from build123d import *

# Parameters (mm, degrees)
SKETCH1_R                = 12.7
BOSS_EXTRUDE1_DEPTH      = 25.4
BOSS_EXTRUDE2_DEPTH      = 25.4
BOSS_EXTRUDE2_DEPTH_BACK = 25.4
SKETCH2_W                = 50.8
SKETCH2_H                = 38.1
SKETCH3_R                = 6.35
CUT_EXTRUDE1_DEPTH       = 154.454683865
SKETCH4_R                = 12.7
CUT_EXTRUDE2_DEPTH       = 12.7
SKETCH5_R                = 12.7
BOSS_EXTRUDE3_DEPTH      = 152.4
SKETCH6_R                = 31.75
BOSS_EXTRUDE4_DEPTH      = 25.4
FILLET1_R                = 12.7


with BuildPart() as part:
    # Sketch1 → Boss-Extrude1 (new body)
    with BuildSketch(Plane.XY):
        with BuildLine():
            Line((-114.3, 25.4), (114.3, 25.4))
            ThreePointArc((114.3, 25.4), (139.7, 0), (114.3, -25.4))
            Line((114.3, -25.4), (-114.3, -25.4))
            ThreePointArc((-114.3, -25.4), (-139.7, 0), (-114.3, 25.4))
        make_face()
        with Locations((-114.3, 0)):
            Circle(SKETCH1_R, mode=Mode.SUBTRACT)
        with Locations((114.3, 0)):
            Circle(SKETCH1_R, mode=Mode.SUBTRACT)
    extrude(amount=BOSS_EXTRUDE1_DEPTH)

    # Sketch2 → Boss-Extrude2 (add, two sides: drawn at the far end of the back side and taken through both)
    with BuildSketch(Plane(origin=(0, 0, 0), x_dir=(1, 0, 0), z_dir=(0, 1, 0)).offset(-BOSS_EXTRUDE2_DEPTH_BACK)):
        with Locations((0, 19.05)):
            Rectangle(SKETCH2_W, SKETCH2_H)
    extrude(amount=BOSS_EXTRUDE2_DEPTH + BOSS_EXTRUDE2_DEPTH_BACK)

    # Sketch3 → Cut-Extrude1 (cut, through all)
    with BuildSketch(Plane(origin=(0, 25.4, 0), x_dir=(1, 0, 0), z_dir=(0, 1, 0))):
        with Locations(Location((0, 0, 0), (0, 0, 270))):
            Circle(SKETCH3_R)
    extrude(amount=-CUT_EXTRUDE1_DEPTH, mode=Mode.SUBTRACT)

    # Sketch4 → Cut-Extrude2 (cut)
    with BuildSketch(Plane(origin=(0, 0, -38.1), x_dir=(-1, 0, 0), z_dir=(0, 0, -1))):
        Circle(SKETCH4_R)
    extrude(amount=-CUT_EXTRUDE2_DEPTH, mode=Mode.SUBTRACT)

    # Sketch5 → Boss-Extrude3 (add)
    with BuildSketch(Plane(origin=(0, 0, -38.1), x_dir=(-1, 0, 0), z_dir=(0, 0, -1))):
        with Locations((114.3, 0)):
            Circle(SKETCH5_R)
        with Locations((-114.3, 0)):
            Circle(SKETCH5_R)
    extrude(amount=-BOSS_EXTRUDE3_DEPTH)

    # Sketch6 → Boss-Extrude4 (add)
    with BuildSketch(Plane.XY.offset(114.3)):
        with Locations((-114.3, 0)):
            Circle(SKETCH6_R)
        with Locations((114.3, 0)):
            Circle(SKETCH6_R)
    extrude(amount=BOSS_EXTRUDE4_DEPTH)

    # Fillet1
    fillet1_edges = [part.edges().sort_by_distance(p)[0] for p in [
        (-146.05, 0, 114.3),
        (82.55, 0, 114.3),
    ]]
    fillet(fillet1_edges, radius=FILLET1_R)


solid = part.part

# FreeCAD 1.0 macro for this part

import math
import FreeCAD as App
import Part
import Sketcher
Q = App.Units.Quantity


def edges_at(feature, points):
    """Names of the edges that pass closest to the given points."""
    edges = feature.Shape.Edges
    near = lambda p: min(range(len(edges)), key=lambda i: edges[i].distToShape(Part.Vertex(*p))[0])
    return sorted({f"Edge{near(p) + 1}" for p in points})

doc = App.newDocument("Part")
body = doc.addObject("PartDesign::Body", "Body")

# Sketch on XY plane
sketch1 = body.newObject("Sketcher::SketchObject", "Sketch")
sketch1.AttachmentSupport = (doc.getObject("XY_Plane"), [""])
sketch1.MapMode = "FlatFace"
sketch1.addGeometry([
    Part.LineSegment(App.Vector(114, 25, 0), App.Vector(-114, 25, 0)),  # 0
    Part.ArcOfCircle(Part.Circle(App.Vector(-114, 0, 0), App.Vector(0, 0, 1), 25), math.radians(90), math.radians(270)),  # 1
    Part.LineSegment(App.Vector(-114, -25, 0), App.Vector(114, -25, 0)),  # 2
    Part.ArcOfCircle(Part.Circle(App.Vector(114, 0, 0), App.Vector(0, 0, 1), 25), math.radians(-90), math.radians(90)),  # 3
    Part.Circle(App.Vector(114, 0, 0), App.Vector(0, 0, 1), 13),  # 4
    Part.Circle(App.Vector(-114, 0, 0), App.Vector(0, 0, 1), 13),  # 5
], False)
sketch1.addConstraint([
    Sketcher.Constraint("Tangent", 0, 2, 1, 1),
    Sketcher.Constraint("Tangent", 1, 2, 2, 1),
    Sketcher.Constraint("Tangent", 2, 2, 3, 1),
    Sketcher.Constraint("Tangent", 3, 2, 0, 1),
    Sketcher.Constraint("Horizontal", 0),
    Sketcher.Constraint("Horizontal", 2),
    Sketcher.Constraint("Coincident", 4, 3, 3, 3),
    Sketcher.Constraint("Coincident", 5, 3, 1, 3),
    Sketcher.Constraint("Equal", 4, 5),
    Sketcher.Constraint("Symmetric", 1, 3, 3, 3, -1, 1),
    Sketcher.Constraint("Diameter", 4, Q("1 in")),
    Sketcher.Constraint("Radius", 1, Q("1 in")),
    Sketcher.Constraint("DistanceX", 0, 2, 0, 1, Q("9 in")),
])
pad1 = body.newObject("PartDesign::Pad", "Pad")
pad1.Profile = sketch1
pad1.Length = Q("1 in")

# Sketch on XZ plane
sketch2 = body.newObject("Sketcher::SketchObject", "Sketch001")
sketch2.AttachmentSupport = (doc.getObject("XZ_Plane"), [""])
sketch2.MapMode = "FlatFace"
sketch2.addGeometry([
    Part.LineSegment(App.Vector(-25, -38, 0), App.Vector(-25, 0, 0)),
    Part.LineSegment(App.Vector(-25, 0, 0), App.Vector(25, 0, 0)),
    Part.LineSegment(App.Vector(25, 0, 0), App.Vector(25, -38, 0)),
    Part.LineSegment(App.Vector(25, -38, 0), App.Vector(-25, -38, 0)),
], False)
sketch2.addConstraint([
    Sketcher.Constraint("Coincident", 0, 2, 1, 1),
    Sketcher.Constraint("Coincident", 1, 2, 2, 1),
    Sketcher.Constraint("Coincident", 2, 2, 3, 1),
    Sketcher.Constraint("Coincident", 3, 2, 0, 1),
    Sketcher.Constraint("Vertical", 0),
    Sketcher.Constraint("Horizontal", 1),
    Sketcher.Constraint("Vertical", 2),
    Sketcher.Constraint("Horizontal", 3),
    Sketcher.Constraint("Symmetric", 0, 2, 1, 2, -1, 1),
    Sketcher.Constraint("DistanceX", 1, 1, 1, 2, Q("2 in")),
    Sketcher.Constraint("DistanceY", 0, 1, 0, 2, Q("1.5 in")),
])
pad2 = body.newObject("PartDesign::Pad", "Pad001")
pad2.Profile = sketch2
pad2.Type = "TwoLengths"
pad2.Length = Q("1 in")
pad2.Length2 = Q("1 in")
pad2.Reversed = True

# Sketch on XZ plane
sketch3 = body.newObject("Sketcher::SketchObject", "Sketch002")
sketch3.AttachmentSupport = (doc.getObject("XZ_Plane"), [""])
sketch3.MapMode = "FlatFace"
sketch3.AttachmentOffset = App.Placement(App.Vector(0, 0, -1 * 25.4), App.Rotation())
sketch3.addGeometry(Part.Circle(App.Vector(0, 0, 0), App.Vector(0, 0, 1), 6), False)
sketch3.addConstraint([
    Sketcher.Constraint("Coincident", 0, 3, -1, 1),
    Sketcher.Constraint("Diameter", 0, Q("0.5 in")),
])
pocket1 = body.newObject("PartDesign::Pocket", "Pocket")
pocket1.Profile = sketch3
pocket1.Type = "ThroughAll"
pocket1.Reversed = True

# Sketch on XY plane
sketch4 = body.newObject("Sketcher::SketchObject", "Sketch003")
sketch4.AttachmentSupport = (doc.getObject("XY_Plane"), [""])
sketch4.MapMode = "FlatFace"
sketch4.AttachmentOffset = App.Placement(App.Vector(0, 0, -1.5 * 25.4), App.Rotation())
sketch4.addGeometry(Part.Circle(App.Vector(0, 0, 0), App.Vector(0, 0, 1), 13), False)
sketch4.addConstraint([
    Sketcher.Constraint("Coincident", 0, 3, -1, 1),
    Sketcher.Constraint("Diameter", 0, Q("1 in")),
])
pocket2 = body.newObject("PartDesign::Pocket", "Pocket001")
pocket2.Profile = sketch4
pocket2.Length = Q("0.5 in")
pocket2.Reversed = True

# Sketch on XY plane
sketch5 = body.newObject("Sketcher::SketchObject", "Sketch004")
sketch5.AttachmentSupport = (doc.getObject("XY_Plane"), [""])
sketch5.MapMode = "FlatFace"
sketch5.AttachmentOffset = App.Placement(App.Vector(0, 0, -1.5 * 25.4), App.Rotation())
sketch5.addGeometry([
    Part.Circle(App.Vector(-114, 0, 0), App.Vector(0, 0, 1), 13),
    Part.Circle(App.Vector(114, 0, 0), App.Vector(0, 0, 1), 13),
], False)
sketch5.addConstraint([
    Sketcher.Constraint("Equal", 0, 1),
    Sketcher.Constraint("Symmetric", 0, 3, 1, 3, -1, 1),
    Sketcher.Constraint("PointOnObject", 0, 3, -1),
    Sketcher.Constraint("Diameter", 0, Q("1 in")),
    Sketcher.Constraint("DistanceX", 0, 3, 1, 3, Q("9 in")),
])
pad3 = body.newObject("PartDesign::Pad", "Pad002")
pad3.Profile = sketch5
pad3.Length = Q("6 in")

# Sketch on XY plane
sketch6 = body.newObject("Sketcher::SketchObject", "Sketch005")
sketch6.AttachmentSupport = (doc.getObject("XY_Plane"), [""])
sketch6.MapMode = "FlatFace"
sketch6.AttachmentOffset = App.Placement(App.Vector(0, 0, 4.5 * 25.4), App.Rotation())
sketch6.addGeometry([
    Part.Circle(App.Vector(-114, 0, 0), App.Vector(0, 0, 1), 32),
    Part.Circle(App.Vector(114, 0, 0), App.Vector(0, 0, 1), 32),
], False)
sketch6.addConstraint([
    Sketcher.Constraint("Equal", 0, 1),
    Sketcher.Constraint("Symmetric", 0, 3, 1, 3, -1, 1),
    Sketcher.Constraint("PointOnObject", 0, 3, -1),
    Sketcher.Constraint("Diameter", 0, Q("2.5 in")),
    Sketcher.Constraint("DistanceX", 0, 3, 1, 3, Q("9 in")),
])
pad4 = body.newObject("PartDesign::Pad", "Pad003")
pad4.Profile = sketch6
pad4.Length = Q("1 in")
doc.recompute()

fillet = body.newObject("PartDesign::Fillet", "Fillet")
fillet.Base = (pad4, edges_at(pad4, [(-146.05, 0, 114.3), (82.55, 0, 114.3)]))
fillet.Radius = Q("0.5 in")

doc.recompute()
